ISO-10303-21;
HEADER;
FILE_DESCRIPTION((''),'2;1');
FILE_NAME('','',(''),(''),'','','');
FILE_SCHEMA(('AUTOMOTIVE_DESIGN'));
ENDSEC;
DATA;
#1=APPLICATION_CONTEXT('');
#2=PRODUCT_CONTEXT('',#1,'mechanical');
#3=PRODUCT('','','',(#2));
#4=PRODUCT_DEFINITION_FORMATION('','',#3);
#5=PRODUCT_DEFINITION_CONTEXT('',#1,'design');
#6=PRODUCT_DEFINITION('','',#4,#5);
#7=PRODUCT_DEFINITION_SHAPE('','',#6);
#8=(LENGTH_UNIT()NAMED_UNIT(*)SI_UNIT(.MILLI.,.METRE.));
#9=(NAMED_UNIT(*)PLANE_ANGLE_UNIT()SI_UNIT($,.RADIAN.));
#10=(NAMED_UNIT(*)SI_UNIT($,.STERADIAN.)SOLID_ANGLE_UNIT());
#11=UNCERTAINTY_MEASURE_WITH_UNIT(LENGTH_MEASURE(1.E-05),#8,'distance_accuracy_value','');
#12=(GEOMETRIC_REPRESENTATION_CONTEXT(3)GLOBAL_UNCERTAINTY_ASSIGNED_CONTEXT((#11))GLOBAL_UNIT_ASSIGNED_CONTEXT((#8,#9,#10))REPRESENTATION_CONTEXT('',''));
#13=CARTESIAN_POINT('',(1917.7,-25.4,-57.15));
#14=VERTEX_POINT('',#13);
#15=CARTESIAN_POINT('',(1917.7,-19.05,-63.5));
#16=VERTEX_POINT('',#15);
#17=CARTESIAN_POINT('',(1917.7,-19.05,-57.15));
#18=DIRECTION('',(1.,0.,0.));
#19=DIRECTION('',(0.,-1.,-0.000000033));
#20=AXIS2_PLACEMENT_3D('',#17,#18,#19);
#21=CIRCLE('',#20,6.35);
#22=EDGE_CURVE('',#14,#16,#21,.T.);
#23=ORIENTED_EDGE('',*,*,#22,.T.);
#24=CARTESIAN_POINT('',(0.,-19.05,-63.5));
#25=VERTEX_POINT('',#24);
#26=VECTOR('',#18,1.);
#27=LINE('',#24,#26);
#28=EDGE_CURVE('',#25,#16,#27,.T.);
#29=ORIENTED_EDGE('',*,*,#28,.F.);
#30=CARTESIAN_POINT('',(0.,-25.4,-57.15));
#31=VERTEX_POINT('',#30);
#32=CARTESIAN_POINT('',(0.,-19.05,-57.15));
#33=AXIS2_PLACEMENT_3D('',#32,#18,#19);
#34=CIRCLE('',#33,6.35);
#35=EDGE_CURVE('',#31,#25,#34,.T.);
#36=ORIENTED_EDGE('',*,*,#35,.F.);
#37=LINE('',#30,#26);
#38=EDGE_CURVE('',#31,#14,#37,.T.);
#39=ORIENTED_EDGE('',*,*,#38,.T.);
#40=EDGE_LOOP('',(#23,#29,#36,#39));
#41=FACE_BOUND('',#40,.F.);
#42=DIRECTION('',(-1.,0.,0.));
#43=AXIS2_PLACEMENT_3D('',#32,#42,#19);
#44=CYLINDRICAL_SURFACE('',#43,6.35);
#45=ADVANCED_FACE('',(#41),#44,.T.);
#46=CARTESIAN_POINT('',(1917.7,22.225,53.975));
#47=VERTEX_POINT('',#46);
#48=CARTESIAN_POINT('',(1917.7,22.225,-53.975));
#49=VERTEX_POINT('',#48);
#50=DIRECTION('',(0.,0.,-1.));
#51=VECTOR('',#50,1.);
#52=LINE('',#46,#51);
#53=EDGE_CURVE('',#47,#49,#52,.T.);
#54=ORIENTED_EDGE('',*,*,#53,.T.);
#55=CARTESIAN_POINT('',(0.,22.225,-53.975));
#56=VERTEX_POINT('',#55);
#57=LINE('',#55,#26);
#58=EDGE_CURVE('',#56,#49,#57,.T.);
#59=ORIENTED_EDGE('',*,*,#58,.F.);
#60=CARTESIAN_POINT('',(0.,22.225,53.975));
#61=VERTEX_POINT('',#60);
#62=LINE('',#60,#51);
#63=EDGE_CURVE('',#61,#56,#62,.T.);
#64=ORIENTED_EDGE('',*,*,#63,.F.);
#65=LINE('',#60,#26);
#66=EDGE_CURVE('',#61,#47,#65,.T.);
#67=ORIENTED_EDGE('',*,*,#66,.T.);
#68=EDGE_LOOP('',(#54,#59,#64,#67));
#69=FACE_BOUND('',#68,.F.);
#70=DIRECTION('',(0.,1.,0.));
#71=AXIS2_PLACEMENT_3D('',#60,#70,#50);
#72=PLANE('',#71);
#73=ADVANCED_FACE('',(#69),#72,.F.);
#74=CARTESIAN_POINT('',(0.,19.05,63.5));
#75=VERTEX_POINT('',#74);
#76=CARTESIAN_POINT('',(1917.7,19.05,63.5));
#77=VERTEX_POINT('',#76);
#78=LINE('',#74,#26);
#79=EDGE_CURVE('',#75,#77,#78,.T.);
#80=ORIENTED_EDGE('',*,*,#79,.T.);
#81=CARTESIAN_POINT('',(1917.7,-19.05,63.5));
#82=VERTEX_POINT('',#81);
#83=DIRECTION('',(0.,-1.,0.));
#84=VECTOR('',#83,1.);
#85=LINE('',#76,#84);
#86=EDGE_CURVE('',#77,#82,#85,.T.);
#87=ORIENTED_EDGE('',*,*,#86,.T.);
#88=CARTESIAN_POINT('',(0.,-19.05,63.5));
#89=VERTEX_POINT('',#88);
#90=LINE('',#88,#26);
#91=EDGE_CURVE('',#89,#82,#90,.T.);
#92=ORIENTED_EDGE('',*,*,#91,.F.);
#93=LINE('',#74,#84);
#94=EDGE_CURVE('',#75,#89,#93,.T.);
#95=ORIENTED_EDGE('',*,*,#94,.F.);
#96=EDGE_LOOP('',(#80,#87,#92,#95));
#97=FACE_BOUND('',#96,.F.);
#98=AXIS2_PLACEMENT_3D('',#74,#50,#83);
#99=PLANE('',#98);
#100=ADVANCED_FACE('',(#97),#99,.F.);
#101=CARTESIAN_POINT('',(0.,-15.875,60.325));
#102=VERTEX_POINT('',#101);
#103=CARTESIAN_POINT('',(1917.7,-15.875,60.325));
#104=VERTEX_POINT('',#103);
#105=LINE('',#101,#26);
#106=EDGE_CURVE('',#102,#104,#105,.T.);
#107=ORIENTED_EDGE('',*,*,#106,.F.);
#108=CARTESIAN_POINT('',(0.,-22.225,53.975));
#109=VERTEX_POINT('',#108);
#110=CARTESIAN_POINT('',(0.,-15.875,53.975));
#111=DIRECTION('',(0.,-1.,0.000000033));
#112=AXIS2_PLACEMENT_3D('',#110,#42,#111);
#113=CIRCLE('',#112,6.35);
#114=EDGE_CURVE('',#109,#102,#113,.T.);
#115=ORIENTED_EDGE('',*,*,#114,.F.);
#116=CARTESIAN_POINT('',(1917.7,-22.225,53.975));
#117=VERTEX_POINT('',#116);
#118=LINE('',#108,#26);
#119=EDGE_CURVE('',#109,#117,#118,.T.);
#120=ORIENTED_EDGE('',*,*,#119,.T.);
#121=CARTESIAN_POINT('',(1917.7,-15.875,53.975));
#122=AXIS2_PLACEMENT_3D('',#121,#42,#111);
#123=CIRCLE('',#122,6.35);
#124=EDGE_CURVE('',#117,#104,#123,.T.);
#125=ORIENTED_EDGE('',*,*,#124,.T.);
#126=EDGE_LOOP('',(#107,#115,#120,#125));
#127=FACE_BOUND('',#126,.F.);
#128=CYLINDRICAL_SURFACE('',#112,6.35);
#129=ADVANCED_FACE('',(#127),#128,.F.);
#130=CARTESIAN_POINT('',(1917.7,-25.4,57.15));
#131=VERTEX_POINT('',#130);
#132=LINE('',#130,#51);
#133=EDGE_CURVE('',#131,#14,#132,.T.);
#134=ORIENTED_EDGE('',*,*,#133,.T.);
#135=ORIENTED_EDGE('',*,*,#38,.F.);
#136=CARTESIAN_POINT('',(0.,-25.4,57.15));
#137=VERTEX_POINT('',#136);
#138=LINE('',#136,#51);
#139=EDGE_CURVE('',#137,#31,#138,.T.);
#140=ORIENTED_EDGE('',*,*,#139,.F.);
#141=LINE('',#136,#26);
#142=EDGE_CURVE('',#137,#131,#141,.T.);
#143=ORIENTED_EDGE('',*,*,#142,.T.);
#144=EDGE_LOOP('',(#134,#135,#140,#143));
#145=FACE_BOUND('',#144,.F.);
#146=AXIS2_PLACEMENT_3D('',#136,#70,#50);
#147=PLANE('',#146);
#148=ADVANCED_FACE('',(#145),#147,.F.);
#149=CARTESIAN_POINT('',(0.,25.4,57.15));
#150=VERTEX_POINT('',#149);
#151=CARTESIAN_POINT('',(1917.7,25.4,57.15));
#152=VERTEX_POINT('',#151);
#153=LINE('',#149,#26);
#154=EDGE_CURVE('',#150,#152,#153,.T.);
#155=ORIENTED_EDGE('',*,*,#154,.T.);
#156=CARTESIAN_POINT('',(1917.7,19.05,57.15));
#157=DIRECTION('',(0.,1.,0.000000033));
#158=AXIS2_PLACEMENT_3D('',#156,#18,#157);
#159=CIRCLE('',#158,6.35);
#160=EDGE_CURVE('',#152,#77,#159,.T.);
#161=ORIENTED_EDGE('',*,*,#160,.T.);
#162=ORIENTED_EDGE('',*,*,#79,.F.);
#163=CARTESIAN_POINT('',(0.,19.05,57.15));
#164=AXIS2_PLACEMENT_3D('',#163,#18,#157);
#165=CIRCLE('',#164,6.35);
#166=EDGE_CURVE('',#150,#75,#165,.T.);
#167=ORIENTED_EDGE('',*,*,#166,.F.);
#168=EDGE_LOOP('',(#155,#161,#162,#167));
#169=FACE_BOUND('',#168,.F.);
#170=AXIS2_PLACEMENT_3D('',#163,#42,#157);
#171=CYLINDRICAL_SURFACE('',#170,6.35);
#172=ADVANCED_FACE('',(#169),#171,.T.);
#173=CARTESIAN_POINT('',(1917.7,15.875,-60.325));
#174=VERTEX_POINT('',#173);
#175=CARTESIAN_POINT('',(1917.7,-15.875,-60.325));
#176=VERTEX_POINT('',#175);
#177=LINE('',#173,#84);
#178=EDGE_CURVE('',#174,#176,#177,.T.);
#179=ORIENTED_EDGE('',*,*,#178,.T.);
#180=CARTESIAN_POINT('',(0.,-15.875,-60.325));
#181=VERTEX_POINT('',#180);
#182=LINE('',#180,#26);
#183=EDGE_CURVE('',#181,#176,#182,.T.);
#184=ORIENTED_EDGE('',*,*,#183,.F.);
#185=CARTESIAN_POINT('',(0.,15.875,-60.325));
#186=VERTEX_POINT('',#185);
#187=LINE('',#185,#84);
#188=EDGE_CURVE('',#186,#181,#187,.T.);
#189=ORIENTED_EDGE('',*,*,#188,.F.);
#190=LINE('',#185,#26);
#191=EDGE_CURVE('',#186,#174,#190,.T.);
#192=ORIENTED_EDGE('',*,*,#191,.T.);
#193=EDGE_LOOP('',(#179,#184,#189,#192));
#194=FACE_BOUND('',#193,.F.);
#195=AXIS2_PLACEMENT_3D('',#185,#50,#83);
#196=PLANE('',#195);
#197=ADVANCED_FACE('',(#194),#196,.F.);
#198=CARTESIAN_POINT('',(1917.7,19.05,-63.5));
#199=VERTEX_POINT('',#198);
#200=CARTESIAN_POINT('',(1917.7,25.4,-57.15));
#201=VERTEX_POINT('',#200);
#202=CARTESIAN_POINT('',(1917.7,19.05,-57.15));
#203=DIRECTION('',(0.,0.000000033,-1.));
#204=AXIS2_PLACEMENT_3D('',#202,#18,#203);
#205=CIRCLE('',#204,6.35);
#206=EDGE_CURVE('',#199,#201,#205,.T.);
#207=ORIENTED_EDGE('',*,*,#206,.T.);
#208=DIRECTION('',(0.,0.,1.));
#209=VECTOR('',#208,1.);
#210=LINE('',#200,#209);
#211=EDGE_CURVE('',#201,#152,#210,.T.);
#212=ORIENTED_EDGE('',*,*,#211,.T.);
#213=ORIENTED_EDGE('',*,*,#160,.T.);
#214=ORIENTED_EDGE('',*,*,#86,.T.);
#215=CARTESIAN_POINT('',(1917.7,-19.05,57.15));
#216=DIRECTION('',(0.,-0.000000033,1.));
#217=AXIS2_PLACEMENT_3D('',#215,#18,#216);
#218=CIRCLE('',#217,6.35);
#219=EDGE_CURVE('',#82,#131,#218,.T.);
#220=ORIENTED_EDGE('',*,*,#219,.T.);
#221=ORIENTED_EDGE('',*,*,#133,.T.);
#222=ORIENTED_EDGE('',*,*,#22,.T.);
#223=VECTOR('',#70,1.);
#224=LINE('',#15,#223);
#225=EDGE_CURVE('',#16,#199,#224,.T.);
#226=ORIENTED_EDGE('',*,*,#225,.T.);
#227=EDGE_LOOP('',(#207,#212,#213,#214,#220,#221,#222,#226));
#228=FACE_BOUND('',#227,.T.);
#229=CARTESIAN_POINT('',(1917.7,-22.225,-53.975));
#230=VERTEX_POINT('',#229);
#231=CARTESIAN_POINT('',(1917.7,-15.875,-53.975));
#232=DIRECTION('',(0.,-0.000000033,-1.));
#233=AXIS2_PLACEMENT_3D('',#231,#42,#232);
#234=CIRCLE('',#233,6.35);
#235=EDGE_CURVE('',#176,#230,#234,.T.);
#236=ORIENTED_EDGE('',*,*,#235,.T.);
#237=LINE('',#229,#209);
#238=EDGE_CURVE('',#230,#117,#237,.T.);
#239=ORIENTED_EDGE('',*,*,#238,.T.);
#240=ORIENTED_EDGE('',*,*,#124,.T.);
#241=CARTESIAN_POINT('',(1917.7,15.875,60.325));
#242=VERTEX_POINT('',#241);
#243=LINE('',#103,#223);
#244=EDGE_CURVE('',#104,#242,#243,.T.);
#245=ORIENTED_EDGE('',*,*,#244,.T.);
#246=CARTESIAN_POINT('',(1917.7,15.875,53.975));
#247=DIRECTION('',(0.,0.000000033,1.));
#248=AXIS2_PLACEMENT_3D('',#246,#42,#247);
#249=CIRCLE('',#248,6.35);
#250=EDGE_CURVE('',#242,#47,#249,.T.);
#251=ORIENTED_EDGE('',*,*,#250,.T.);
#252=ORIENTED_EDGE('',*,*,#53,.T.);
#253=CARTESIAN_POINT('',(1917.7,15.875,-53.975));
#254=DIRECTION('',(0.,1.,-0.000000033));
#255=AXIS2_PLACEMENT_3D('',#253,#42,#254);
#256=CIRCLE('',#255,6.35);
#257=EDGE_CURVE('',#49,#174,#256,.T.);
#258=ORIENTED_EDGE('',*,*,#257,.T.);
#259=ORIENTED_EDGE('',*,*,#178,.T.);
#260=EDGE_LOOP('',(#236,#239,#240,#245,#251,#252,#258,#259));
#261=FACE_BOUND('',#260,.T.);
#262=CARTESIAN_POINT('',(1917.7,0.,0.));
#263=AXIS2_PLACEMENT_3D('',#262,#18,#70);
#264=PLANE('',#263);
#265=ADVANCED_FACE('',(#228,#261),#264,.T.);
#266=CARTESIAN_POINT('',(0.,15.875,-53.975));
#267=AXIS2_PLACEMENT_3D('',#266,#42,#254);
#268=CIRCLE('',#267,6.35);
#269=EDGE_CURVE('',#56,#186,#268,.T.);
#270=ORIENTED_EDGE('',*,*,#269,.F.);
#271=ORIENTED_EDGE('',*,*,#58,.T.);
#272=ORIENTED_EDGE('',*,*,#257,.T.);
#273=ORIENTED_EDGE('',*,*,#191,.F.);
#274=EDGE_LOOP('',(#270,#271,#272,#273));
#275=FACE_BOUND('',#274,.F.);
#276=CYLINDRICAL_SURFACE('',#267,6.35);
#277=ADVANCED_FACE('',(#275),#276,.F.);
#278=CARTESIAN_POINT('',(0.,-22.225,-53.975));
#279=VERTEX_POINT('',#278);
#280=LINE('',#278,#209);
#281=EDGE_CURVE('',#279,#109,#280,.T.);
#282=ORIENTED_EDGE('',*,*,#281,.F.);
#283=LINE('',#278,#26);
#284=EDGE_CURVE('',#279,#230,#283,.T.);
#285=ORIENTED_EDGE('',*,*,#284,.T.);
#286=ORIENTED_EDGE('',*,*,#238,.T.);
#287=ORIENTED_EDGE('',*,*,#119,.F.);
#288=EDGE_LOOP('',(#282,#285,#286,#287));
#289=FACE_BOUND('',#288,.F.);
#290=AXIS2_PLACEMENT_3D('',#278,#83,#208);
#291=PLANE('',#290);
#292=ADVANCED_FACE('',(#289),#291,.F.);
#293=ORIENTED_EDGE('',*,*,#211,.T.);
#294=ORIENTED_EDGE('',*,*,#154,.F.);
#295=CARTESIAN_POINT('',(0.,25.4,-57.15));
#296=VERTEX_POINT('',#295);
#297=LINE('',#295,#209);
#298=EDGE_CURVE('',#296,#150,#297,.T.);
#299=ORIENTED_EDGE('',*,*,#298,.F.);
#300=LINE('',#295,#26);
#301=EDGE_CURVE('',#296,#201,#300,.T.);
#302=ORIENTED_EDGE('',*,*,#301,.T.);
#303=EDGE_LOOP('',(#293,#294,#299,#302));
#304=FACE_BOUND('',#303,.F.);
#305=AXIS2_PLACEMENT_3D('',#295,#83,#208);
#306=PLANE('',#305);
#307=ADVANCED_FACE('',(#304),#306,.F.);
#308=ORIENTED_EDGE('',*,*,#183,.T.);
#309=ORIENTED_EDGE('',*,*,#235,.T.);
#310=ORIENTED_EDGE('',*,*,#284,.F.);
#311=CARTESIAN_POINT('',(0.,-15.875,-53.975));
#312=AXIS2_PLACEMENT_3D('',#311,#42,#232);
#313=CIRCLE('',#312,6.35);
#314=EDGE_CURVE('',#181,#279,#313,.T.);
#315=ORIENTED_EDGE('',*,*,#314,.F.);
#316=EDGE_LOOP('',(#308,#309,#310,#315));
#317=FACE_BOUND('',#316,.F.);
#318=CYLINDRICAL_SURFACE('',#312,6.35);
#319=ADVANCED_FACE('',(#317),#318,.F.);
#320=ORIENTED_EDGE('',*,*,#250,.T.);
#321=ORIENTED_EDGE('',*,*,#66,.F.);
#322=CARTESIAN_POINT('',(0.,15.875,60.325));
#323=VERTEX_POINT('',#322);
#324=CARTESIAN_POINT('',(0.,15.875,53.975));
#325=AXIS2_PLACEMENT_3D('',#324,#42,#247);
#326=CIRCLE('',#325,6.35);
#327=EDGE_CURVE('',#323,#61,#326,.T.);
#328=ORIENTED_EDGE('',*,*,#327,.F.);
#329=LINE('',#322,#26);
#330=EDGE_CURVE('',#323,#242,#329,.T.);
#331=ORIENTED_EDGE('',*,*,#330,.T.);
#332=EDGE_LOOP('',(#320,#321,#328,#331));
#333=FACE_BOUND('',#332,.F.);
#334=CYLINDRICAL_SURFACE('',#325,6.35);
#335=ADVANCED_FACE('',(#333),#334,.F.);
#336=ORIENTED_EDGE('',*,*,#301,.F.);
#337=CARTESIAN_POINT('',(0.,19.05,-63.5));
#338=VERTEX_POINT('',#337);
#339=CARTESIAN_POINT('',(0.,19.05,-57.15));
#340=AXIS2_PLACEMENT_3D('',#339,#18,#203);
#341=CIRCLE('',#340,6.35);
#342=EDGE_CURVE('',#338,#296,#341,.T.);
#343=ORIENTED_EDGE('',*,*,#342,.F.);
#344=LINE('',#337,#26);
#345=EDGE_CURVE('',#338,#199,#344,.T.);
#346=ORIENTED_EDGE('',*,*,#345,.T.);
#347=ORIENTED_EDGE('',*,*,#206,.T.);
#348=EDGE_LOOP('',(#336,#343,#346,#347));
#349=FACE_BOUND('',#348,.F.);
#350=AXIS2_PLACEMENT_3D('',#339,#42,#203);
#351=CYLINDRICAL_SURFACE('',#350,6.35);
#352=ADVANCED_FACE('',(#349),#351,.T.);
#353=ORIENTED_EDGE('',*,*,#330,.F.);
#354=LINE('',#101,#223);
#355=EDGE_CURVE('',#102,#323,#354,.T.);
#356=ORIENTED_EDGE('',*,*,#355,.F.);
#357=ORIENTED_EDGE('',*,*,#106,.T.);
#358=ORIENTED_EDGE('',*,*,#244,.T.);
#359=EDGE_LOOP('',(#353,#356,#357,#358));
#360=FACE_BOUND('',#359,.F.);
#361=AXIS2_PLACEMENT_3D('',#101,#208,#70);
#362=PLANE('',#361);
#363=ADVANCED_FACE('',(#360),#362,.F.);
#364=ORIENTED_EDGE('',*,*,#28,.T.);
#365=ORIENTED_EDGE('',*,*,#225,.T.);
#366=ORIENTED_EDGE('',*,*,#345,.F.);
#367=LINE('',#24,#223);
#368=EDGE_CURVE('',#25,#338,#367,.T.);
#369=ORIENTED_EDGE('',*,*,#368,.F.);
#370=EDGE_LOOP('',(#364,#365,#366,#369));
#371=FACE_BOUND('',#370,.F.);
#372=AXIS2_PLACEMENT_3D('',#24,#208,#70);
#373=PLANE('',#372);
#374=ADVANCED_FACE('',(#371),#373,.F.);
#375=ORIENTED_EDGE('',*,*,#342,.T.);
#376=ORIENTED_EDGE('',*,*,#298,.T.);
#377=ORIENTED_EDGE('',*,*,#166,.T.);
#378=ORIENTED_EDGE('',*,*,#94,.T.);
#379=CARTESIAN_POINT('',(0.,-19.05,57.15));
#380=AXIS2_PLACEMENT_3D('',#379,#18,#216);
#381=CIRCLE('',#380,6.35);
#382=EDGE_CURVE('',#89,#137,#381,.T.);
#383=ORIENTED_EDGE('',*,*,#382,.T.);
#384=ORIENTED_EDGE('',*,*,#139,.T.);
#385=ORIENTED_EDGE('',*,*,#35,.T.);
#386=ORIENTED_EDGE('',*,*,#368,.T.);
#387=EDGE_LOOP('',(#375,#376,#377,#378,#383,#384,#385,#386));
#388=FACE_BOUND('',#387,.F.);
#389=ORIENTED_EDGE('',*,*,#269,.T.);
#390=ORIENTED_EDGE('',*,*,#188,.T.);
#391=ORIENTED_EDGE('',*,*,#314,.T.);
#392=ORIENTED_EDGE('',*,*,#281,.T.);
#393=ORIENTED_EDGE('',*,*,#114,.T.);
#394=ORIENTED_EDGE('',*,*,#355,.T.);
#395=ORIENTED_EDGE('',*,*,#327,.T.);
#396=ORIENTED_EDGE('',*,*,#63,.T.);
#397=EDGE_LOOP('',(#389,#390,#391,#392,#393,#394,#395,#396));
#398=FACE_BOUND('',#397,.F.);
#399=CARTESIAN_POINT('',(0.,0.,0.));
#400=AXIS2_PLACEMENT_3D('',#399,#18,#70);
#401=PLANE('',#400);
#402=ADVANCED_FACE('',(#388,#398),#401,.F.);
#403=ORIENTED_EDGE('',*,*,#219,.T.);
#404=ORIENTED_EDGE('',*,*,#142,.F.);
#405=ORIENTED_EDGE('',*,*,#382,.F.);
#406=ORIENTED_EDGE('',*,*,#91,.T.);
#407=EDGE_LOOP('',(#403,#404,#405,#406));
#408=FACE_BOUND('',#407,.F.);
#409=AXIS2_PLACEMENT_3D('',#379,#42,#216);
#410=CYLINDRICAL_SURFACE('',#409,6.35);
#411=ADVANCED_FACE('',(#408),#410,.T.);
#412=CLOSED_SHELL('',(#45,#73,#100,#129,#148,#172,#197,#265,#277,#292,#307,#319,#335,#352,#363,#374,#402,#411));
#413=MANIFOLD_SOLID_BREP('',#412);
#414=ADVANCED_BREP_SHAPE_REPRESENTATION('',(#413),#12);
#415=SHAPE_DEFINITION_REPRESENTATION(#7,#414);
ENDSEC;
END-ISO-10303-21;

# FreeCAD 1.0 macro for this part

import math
import FreeCAD as App
import Part
import Sketcher
from FreeCAD import Vector
Q = App.Units.Quantity

doc = App.newDocument("Part")
body = doc.addObject("PartDesign::Body", "Body")

# Sketch on YZ plane
sketch1 = doc.addObject("Sketcher::SketchObject", "Sketch")
body.addObject(sketch1)
sketch1.AttachmentSupport = (doc.YZ_Plane, [""])
sketch1.MapMode = "FlatFace"
sketch1.addGeometry([
    Part.LineSegment(Vector(19.05, 63.5, 0), Vector(-19.05, 63.5, 0)),  # 0
    Part.ArcOfCircle(Part.Circle(Vector(-19.05, 57.15, 0), Vector(0, 0, 1), 6.35), math.radians(90.000002), math.radians(179.999998)),  # 1
    Part.LineSegment(Vector(-25.4, 57.15, 0), Vector(-25.4, -57.15, 0)),  # 2
    Part.ArcOfCircle(Part.Circle(Vector(-19.05, -57.15, 0), Vector(0, 0, 1), 6.35), math.radians(-179.999998), math.radians(-90.000002)),  # 3
    Part.LineSegment(Vector(-19.05, -63.5, 0), Vector(19.05, -63.5, 0)),  # 4
    Part.ArcOfCircle(Part.Circle(Vector(19.05, -57.15, 0), Vector(0, 0, 1), 6.35), math.radians(-89.999998), math.radians(-0.000002)),  # 5
    Part.LineSegment(Vector(25.4, -57.15, 0), Vector(25.4, 57.15, 0)),  # 6
    Part.ArcOfCircle(Part.Circle(Vector(19.05, 57.15, 0), Vector(0, 0, 1), 6.35), math.radians(0.000002), math.radians(89.999998)),  # 7
    Part.ArcOfCircle(Part.Circle(Vector(-15.875, 53.975, 0), Vector(0, 0, 1), 6.35), math.radians(90.000002), math.radians(179.999998)),  # 8
    Part.LineSegment(Vector(-15.875, 60.325, 0), Vector(15.875, 60.325, 0)),  # 9
    Part.ArcOfCircle(Part.Circle(Vector(15.875, 53.975, 0), Vector(0, 0, 1), 6.35), math.radians(0.000002), math.radians(89.999998)),  # 10
    Part.LineSegment(Vector(22.225, 53.975, 0), Vector(22.225, -53.975, 0)),  # 11
    Part.ArcOfCircle(Part.Circle(Vector(15.875, -53.975, 0), Vector(0, 0, 1), 6.35), math.radians(-89.999998), math.radians(-0.000002)),  # 12
    Part.LineSegment(Vector(15.875, -60.325, 0), Vector(-15.875, -60.325, 0)),  # 13
    Part.ArcOfCircle(Part.Circle(Vector(-15.875, -53.975, 0), Vector(0, 0, 1), 6.35), math.radians(-179.999998), math.radians(-90.000002)),  # 14
    Part.LineSegment(Vector(-22.225, -53.975, 0), Vector(-22.225, 53.975, 0)),  # 15
], False)
sketch1.addConstraint([
    Sketcher.Constraint("Tangent", 0, 2, 1, 1),
    Sketcher.Constraint("Tangent", 1, 2, 2, 1),
    Sketcher.Constraint("Tangent", 2, 2, 3, 1),
    Sketcher.Constraint("Tangent", 3, 2, 4, 1),
    Sketcher.Constraint("Tangent", 4, 2, 5, 1),
    Sketcher.Constraint("Tangent", 5, 2, 6, 1),
    Sketcher.Constraint("Tangent", 6, 2, 7, 1),
    Sketcher.Constraint("Tangent", 7, 2, 0, 1),
    Sketcher.Constraint("Tangent", 8, 1, 9, 1),
    Sketcher.Constraint("Tangent", 9, 2, 10, 2),
    Sketcher.Constraint("Tangent", 10, 1, 11, 1),
    Sketcher.Constraint("Tangent", 11, 2, 12, 2),
    Sketcher.Constraint("Tangent", 12, 1, 13, 1),
    Sketcher.Constraint("Tangent", 13, 2, 14, 2),
    Sketcher.Constraint("Tangent", 14, 1, 15, 1),
    Sketcher.Constraint("Tangent", 15, 2, 8, 2),
    Sketcher.Constraint("Horizontal", 0),
    Sketcher.Constraint("Vertical", 2),
    Sketcher.Constraint("Horizontal", 4),
    Sketcher.Constraint("Vertical", 6),
    Sketcher.Constraint("Horizontal", 9),
    Sketcher.Constraint("Vertical", 11),
    Sketcher.Constraint("Horizontal", 13),
    Sketcher.Constraint("Vertical", 15),
    Sketcher.Constraint("Equal", 1, 3),
    Sketcher.Constraint("Equal", 3, 5),
    Sketcher.Constraint("Equal", 5, 7),
    Sketcher.Constraint("Equal", 7, 8),
    Sketcher.Constraint("Equal", 8, 10),
    Sketcher.Constraint("Equal", 10, 12),
    Sketcher.Constraint("Equal", 12, 14),
    Sketcher.Constraint("Symmetric", 1, 3, 5, 3, -1, 1),
    Sketcher.Constraint("Symmetric", 8, 3, 12, 3, -1, 1),
    Sketcher.Constraint("Radius", 1, Q("0.25 in")),
    Sketcher.Constraint("DistanceX", 0, 2, 0, 1, Q("1.5 in")),
    Sketcher.Constraint("DistanceY", 2, 2, 2, 1, Q("4.5 in")),
    Sketcher.Constraint("DistanceX", 9, 1, 9, 2, Q("1.25 in")),
    Sketcher.Constraint("DistanceY", 11, 2, 11, 1, Q("4.25 in")),
])
pad1 = doc.addObject("PartDesign::Pad", "Pad")
body.addObject(pad1)
pad1.Profile = sketch1
pad1.Length = Q("75.5 in")

doc.recompute()
